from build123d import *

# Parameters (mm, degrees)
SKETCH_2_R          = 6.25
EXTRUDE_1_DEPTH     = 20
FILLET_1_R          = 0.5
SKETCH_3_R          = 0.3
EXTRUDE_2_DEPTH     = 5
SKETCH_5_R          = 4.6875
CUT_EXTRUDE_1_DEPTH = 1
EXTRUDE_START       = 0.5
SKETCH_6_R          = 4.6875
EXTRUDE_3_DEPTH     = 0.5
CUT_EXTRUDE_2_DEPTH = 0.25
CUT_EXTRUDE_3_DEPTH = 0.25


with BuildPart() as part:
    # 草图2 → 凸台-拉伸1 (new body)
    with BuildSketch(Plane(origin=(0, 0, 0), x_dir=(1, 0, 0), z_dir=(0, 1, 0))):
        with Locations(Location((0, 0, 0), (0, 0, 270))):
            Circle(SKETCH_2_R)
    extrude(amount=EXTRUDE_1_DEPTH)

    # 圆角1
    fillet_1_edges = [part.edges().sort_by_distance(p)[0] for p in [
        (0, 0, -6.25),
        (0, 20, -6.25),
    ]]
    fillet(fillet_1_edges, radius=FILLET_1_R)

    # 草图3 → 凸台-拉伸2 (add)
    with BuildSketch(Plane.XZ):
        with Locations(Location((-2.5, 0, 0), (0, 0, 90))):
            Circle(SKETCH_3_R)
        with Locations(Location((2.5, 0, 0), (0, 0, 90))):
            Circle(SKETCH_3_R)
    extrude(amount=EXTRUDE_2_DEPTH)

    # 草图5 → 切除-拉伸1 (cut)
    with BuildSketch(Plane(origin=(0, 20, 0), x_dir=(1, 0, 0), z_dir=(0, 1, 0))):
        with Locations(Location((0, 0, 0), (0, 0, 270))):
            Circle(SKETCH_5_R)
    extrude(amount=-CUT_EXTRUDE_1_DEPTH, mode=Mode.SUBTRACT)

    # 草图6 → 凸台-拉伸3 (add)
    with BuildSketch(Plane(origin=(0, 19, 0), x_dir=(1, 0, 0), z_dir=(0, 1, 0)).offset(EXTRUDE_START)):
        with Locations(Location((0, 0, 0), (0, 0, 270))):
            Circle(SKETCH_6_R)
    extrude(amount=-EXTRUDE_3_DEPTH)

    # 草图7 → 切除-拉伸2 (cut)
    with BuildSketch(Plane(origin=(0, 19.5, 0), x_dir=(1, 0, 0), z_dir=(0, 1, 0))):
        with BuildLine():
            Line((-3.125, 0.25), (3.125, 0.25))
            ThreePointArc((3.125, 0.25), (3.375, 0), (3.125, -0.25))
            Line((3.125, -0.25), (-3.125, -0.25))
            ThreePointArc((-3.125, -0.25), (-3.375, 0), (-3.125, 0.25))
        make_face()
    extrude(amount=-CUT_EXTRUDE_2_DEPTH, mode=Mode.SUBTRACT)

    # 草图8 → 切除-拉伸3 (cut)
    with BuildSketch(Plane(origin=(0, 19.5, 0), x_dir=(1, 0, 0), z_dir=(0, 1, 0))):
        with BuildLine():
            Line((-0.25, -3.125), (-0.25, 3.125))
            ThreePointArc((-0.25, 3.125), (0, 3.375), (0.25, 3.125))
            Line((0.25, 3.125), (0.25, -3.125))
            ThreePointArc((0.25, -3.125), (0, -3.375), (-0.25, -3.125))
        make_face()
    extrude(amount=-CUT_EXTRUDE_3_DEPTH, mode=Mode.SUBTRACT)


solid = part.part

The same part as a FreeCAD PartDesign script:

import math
import FreeCAD as App
import Part
import Sketcher
from FreeCAD import Vector
Q = App.Units.Quantity


def edges_at(feature, points):
    """Names of the edges that pass closest to the given points."""
    edges = feature.Shape.Edges
    near = lambda p: min(range(len(edges)), key=lambda i: edges[i].distToShape(Part.Vertex(*p))[0])
    return sorted({f"Edge{near(p) + 1}" for p in points})

doc = App.newDocument("Part")
body = doc.addObject("PartDesign::Body", "Body")

sketch1 = body.newObject("Sketcher::SketchObject", "Sketch")
sketch1.AttachmentSupport = (doc.getObject("XZ_Plane"), [""])
sketch1.MapMode = "FlatFace"
sketch1.addGeometry(Part.Circle(Vector(0, 0, 0), Vector(0, 0, 1), 6), False)
sketch1.addConstraint([
    Sketcher.Constraint("Coincident", 0, 3, -1, 1),
    Sketcher.Constraint("Diameter", 0, Q("12.5 mm")),
])
pad1 = body.newObject("PartDesign::Pad", "Pad")
pad1.Profile = sketch1
pad1.Length = 20
pad1.Reversed = True
doc.recompute()

fillet = body.newObject("PartDesign::Fillet", "Fillet")
fillet.Base = (pad1, edges_at(pad1, [(0, 0, -6.25), (0, 20, -6.25)]))
fillet.Radius = 0.5

sketch2 = body.newObject("Sketcher::SketchObject", "Sketch001")
sketch2.AttachmentSupport = (doc.getObject("XZ_Plane"), [""])
sketch2.MapMode = "FlatFace"
sketch2.addGeometry([
    Part.Circle(Vector(-2.5, 0, 0), Vector(0, 0, 1), 0.3),
    Part.Circle(Vector(2.5, 0, 0), Vector(0, 0, 1), 0.3),
], False)
sketch2.addConstraint([
    Sketcher.Constraint("Equal", 0, 1),
    Sketcher.Constraint("Symmetric", 0, 3, 1, 3, -1, 1),
    Sketcher.Constraint("PointOnObject", 0, 3, -1),
    Sketcher.Constraint("Diameter", 0, Q("0.6 mm")),
    Sketcher.Constraint("DistanceX", 0, 3, 1, 3, Q("5 mm")),
])
pad2 = body.newObject("PartDesign::Pad", "Pad001")
pad2.Profile = sketch2
pad2.Length = 5

sketch3 = body.newObject("Sketcher::SketchObject", "Sketch002")
sketch3.AttachmentSupport = (doc.getObject("XZ_Plane"), [""])
sketch3.MapMode = "FlatFace"
sketch3.AttachmentOffset = App.Placement(Vector(0, 0, -20), App.Rotation())
sketch3.addGeometry(Part.Circle(Vector(0, 0, 0), Vector(0, 0, 1), 4.7), False)
sketch3.addConstraint([
    Sketcher.Constraint("Coincident", 0, 3, -1, 1),
    Sketcher.Constraint("Diameter", 0, Q("9.375 mm")),
])
pocket1 = body.newObject("PartDesign::Pocket", "Pocket")
pocket1.Profile = sketch3
pocket1.Length = 1
pocket1.Reversed = True

sketch4 = body.newObject("Sketcher::SketchObject", "Sketch003")
sketch4.AttachmentSupport = (doc.getObject("XZ_Plane"), [""])
sketch4.MapMode = "FlatFace"
sketch4.AttachmentOffset = App.Placement(Vector(0, 0, -19.5), App.Rotation())
sketch4.addGeometry(Part.Circle(Vector(0, 0, 0), Vector(0, 0, 1), 4.7), False)
sketch4.addConstraint([
    Sketcher.Constraint("Coincident", 0, 3, -1, 1),
    Sketcher.Constraint("Diameter", 0, Q("9.375 mm")),
])
pad3 = body.newObject("PartDesign::Pad", "Pad002")
pad3.Profile = sketch4
pad3.Length = 0.5

sketch5 = body.newObject("Sketcher::SketchObject", "Sketch004")
sketch5.AttachmentSupport = (doc.getObject("XZ_Plane"), [""])
sketch5.MapMode = "FlatFace"
sketch5.AttachmentOffset = App.Placement(Vector(0, 0, -19.5), App.Rotation())
sketch5.addGeometry([
    Part.LineSegment(Vector(3.12, -0.25, 0), Vector(-3.12, -0.25, 0)),
    Part.ArcOfCircle(Part.Circle(Vector(-3.12, 0, 0), Vector(0, 0, 1), 0.25), math.radians(90), math.radians(270)),
    Part.LineSegment(Vector(-3.12, 0.25, 0), Vector(3.12, 0.25, 0)),
    Part.ArcOfCircle(Part.Circle(Vector(3.12, 0, 0), Vector(0, 0, 1), 0.25), math.radians(-90), math.radians(90)),
], False)
sketch5.addConstraint([
    Sketcher.Constraint("Tangent", 0, 2, 1, 2),
    Sketcher.Constraint("Tangent", 1, 1, 2, 1),
    Sketcher.Constraint("Tangent", 2, 2, 3, 2),
    Sketcher.Constraint("Tangent", 3, 1, 0, 1),
    Sketcher.Constraint("Horizontal", 0),
    Sketcher.Constraint("Horizontal", 2),
    Sketcher.Constraint("Symmetric", 1, 3, 3, 3, -1, 1),
    Sketcher.Constraint("Radius", 1, Q("0.25 mm")),
    Sketcher.Constraint("DistanceX", 0, 2, 0, 1, Q("6.25 mm")),
])
pocket2 = body.newObject("PartDesign::Pocket", "Pocket001")
pocket2.Profile = sketch5
pocket2.Length = 0.25
pocket2.Reversed = True

sketch6 = body.newObject("Sketcher::SketchObject", "Sketch005")
sketch6.AttachmentSupport = (doc.getObject("XZ_Plane"), [""])
sketch6.MapMode = "FlatFace"
sketch6.AttachmentOffset = App.Placement(Vector(0, 0, -19.5), App.Rotation())
sketch6.addGeometry([
    Part.LineSegment(Vector(-0.25, -3.12, 0), Vector(-0.25, 3.12, 0)),
    Part.ArcOfCircle(Part.Circle(Vector(0, 3.12, 0), Vector(0, 0, 1), 0.25), math.radians(0), math.radians(180)),
    Part.LineSegment(Vector(0.25, 3.12, 0), Vector(0.25, -3.12, 0)),
    Part.ArcOfCircle(Part.Circle(Vector(0, -3.12, 0), Vector(0, 0, 1), 0.25), math.radians(180), math.radians(360)),
], False)
sketch6.addConstraint([
    Sketcher.Constraint("Tangent", 0, 2, 1, 2),
    Sketcher.Constraint("Tangent", 1, 1, 2, 1),
    Sketcher.Constraint("Tangent", 2, 2, 3, 2),
    Sketcher.Constraint("Tangent", 3, 1, 0, 1),
    Sketcher.Constraint("Vertical", 0),
    Sketcher.Constraint("Vertical", 2),
    Sketcher.Constraint("Symmetric", 1, 3, 3, 3, -1, 1),
    Sketcher.Constraint("Radius", 1, Q("0.25 mm")),
    Sketcher.Constraint("DistanceY", 0, 1, 0, 2, Q("6.25 mm")),
])
pocket3 = body.newObject("PartDesign::Pocket", "Pocket002")
pocket3.Profile = sketch6
pocket3.Length = 0.25
pocket3.Reversed = True

doc.recompute()
